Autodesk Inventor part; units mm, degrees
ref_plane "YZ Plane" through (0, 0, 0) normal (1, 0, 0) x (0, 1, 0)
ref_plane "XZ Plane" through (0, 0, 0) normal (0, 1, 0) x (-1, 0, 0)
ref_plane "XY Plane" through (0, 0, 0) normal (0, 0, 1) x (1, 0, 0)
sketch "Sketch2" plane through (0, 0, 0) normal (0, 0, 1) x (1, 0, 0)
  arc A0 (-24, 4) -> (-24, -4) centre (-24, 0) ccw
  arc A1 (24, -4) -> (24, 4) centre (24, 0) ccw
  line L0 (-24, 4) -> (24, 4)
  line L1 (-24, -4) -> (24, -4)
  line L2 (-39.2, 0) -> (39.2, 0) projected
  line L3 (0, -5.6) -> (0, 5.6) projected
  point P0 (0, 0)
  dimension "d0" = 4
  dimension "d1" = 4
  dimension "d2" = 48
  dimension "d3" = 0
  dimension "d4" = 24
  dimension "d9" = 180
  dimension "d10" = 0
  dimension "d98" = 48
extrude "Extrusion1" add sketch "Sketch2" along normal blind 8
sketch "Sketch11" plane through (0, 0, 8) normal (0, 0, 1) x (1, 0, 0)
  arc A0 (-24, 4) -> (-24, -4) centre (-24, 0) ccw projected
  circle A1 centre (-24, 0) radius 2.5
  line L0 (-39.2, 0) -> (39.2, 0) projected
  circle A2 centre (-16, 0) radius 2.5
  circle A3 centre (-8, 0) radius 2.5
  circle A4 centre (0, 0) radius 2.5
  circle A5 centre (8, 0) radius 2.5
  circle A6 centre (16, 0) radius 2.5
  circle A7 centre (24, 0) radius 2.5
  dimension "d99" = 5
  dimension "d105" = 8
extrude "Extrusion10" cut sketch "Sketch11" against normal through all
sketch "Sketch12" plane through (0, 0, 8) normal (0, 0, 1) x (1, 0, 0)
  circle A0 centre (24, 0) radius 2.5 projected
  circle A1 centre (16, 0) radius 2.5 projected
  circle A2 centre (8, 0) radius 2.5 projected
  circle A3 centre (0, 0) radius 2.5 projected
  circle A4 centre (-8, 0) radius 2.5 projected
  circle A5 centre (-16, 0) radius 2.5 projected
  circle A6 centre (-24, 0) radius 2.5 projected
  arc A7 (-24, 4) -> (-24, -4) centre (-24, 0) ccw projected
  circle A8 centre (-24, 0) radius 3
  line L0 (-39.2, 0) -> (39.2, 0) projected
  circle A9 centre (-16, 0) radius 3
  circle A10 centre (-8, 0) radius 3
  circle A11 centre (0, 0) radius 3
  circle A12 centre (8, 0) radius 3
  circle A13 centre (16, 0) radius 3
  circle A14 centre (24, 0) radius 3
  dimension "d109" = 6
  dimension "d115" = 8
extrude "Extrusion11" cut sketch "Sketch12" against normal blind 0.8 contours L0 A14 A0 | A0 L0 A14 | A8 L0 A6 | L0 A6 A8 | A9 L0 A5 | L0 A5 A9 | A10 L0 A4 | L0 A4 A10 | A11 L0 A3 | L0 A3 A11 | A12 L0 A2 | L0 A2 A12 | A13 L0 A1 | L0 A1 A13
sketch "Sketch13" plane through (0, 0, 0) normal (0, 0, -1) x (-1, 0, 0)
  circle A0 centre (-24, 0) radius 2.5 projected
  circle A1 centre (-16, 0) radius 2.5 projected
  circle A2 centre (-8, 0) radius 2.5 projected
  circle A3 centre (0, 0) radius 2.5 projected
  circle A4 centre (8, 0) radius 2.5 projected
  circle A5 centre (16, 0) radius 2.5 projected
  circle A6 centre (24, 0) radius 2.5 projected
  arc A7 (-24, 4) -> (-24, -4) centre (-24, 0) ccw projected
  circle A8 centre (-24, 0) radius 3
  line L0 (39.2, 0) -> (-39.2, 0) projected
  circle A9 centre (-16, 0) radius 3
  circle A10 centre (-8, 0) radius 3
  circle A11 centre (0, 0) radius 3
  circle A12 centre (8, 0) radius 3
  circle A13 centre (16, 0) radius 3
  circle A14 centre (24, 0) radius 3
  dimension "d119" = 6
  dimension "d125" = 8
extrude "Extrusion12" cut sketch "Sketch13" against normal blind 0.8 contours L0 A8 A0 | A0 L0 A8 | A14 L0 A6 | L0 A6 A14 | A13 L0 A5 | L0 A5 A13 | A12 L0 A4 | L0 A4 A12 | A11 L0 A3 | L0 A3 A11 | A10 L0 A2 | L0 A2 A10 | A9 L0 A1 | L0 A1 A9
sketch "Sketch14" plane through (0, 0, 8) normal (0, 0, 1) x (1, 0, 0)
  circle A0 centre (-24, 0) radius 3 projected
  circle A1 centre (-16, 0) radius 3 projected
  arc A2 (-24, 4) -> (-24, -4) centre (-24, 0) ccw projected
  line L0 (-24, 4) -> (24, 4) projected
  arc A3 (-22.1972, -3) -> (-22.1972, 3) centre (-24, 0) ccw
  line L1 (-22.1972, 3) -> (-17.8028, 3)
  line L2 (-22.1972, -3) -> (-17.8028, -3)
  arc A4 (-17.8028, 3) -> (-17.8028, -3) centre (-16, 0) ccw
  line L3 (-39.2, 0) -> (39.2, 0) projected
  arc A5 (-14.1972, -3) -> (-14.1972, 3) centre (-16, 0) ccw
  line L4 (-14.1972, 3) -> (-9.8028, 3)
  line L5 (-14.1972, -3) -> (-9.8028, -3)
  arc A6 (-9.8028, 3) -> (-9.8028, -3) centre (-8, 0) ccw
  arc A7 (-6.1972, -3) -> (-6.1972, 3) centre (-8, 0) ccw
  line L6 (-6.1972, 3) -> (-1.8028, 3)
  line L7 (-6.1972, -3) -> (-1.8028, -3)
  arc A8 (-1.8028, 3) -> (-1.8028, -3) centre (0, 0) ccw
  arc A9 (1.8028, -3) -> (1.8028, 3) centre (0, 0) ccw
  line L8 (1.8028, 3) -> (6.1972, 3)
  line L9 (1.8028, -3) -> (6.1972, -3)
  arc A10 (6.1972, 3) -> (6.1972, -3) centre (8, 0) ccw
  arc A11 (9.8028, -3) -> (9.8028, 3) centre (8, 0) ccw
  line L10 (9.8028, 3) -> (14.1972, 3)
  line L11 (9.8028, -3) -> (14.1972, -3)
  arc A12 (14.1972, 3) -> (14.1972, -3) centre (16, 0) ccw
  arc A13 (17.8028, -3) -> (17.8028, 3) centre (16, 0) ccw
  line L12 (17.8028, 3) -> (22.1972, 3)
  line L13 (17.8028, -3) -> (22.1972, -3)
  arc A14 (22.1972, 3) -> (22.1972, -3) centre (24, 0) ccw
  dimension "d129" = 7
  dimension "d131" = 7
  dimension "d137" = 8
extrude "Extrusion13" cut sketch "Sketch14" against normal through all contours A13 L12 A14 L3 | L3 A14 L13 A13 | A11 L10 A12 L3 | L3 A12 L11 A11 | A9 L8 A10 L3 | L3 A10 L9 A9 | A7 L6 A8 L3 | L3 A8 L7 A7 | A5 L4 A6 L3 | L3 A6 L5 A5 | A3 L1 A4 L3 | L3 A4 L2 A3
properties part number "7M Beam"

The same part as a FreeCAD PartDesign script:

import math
import FreeCAD as App
import Part
import Sketcher
Q = App.Units.Quantity

doc = App.newDocument("Part")
body = doc.addObject("PartDesign::Body", "Body")

# Sketch on XY plane
sketch1 = doc.addObject("Sketcher::SketchObject", "Sketch")
body.addObject(sketch1)
sketch1.AttachmentSupport = (doc.XY_Plane, [""])
sketch1.MapMode = "FlatFace"
sketch1.addGeometry([
    Part.ArcOfCircle(Part.Circle(App.Vector(-24, 0, 0), App.Vector(0, 0, 1), 4), math.radians(90), math.radians(270)),
    Part.LineSegment(App.Vector(-24, -4, 0), App.Vector(24, -4, 0)),
    Part.ArcOfCircle(Part.Circle(App.Vector(24, 0, 0), App.Vector(0, 0, 1), 4), math.radians(-90), math.radians(90)),
    Part.LineSegment(App.Vector(24, 4, 0), App.Vector(-24, 4, 0)),
], False)
sketch1.addConstraint([
    Sketcher.Constraint("Tangent", 0, 2, 1, 1),
    Sketcher.Constraint("Tangent", 1, 2, 2, 1),
    Sketcher.Constraint("Tangent", 2, 2, 3, 1),
    Sketcher.Constraint("Tangent", 3, 2, 0, 1),
    Sketcher.Constraint("Horizontal", 1),
    Sketcher.Constraint("Horizontal", 3),
    Sketcher.Constraint("Symmetric", 0, 3, 2, 3, -1, 1),
    Sketcher.Constraint("Radius", 0, Q("4 mm")),
    Sketcher.Constraint("DistanceX", 1, 1, 1, 2, Q("48 mm")),
])
pad1 = doc.addObject("PartDesign::Pad", "Pad")
body.addObject(pad1)
pad1.Profile = sketch1
pad1.Length = 8

# Sketch on XY plane
sketch2 = doc.addObject("Sketcher::SketchObject", "Sketch001")
body.addObject(sketch2)
sketch2.AttachmentSupport = (doc.XY_Plane, [""])
sketch2.MapMode = "FlatFace"
sketch2.AttachmentOffset = App.Placement(App.Vector(0, 0, 8), App.Rotation())
sketch2.addGeometry([
    Part.Circle(App.Vector(-24, 0, 0), App.Vector(0, 0, 1), 2.5),  # 0
    Part.Circle(App.Vector(24, 0, 0), App.Vector(0, 0, 1), 2.5),  # 1
    Part.Circle(App.Vector(16, 0, 0), App.Vector(0, 0, 1), 2.5),  # 2
    Part.Circle(App.Vector(8, 0, 0), App.Vector(0, 0, 1), 2.5),  # 3
    Part.Circle(App.Vector(0, 0, 0), App.Vector(0, 0, 1), 2.5),  # 4
    Part.Circle(App.Vector(-8, 0, 0), App.Vector(0, 0, 1), 2.5),  # 5
    Part.Circle(App.Vector(-16, 0, 0), App.Vector(0, 0, 1), 2.5),  # 6
], False)
sketch2.addConstraint([
    Sketcher.Constraint("Coincident", 4, 3, -1, 1),
    Sketcher.Constraint("Equal", 0, 1),
    Sketcher.Constraint("Equal", 1, 2),
    Sketcher.Constraint("Equal", 2, 3),
    Sketcher.Constraint("Equal", 3, 4),
    Sketcher.Constraint("Equal", 4, 5),
    Sketcher.Constraint("Equal", 5, 6),
    Sketcher.Constraint("Symmetric", 0, 3, 1, 3, -1, 1),
    Sketcher.Constraint("Symmetric", 3, 3, 5, 3, -1, 1),
    Sketcher.Constraint("Symmetric", 2, 3, 6, 3, -1, 1),
    Sketcher.Constraint("PointOnObject", 0, 3, -1),
    Sketcher.Constraint("PointOnObject", 2, 3, -1),
    Sketcher.Constraint("PointOnObject", 3, 3, -1),
    Sketcher.Constraint("Diameter", 0, Q("5 mm")),
    Sketcher.Constraint("DistanceX", -1, 1, 3, 3, Q("8 mm")),
    Sketcher.Constraint("DistanceX", 2, 3, 1, 3, Q("8 mm")),
    Sketcher.Constraint("DistanceX", 3, 3, 2, 3, Q("8 mm")),
])
pocket1 = doc.addObject("PartDesign::Pocket", "Pocket")
body.addObject(pocket1)
pocket1.Profile = sketch2
pocket1.Type = "ThroughAll"

# Sketch on XY plane
sketch3 = doc.addObject("Sketcher::SketchObject", "Sketch002")
body.addObject(sketch3)
sketch3.AttachmentSupport = (doc.XY_Plane, [""])
sketch3.MapMode = "FlatFace"
sketch3.AttachmentOffset = App.Placement(App.Vector(0, 0, 8), App.Rotation())
sketch3.addGeometry([
    Part.Circle(App.Vector(24, 0, 0), App.Vector(0, 0, 1), 3),  # 0
    Part.Circle(App.Vector(24, 0, 0), App.Vector(0, 0, 1), 2.5),  # 1
    Part.Circle(App.Vector(-24, 0, 0), App.Vector(0, 0, 1), 3),  # 2
    Part.Circle(App.Vector(-24, 0, 0), App.Vector(0, 0, 1), 2.5),  # 3
    Part.Circle(App.Vector(-16, 0, 0), App.Vector(0, 0, 1), 3),  # 4
    Part.Circle(App.Vector(-16, 0, 0), App.Vector(0, 0, 1), 2.5),  # 5
    Part.Circle(App.Vector(-8, 0, 0), App.Vector(0, 0, 1), 3),  # 6
    Part.Circle(App.Vector(-8, 0, 0), App.Vector(0, 0, 1), 2.5),  # 7
    Part.Circle(App.Vector(0, 0, 0), App.Vector(0, 0, 1), 3),  # 8
    Part.Circle(App.Vector(0, 0, 0), App.Vector(0, 0, 1), 2.5),  # 9
    Part.Circle(App.Vector(8, 0, 0), App.Vector(0, 0, 1), 3),  # 10
    Part.Circle(App.Vector(8, 0, 0), App.Vector(0, 0, 1), 2.5),  # 11
    Part.Circle(App.Vector(16, 0, 0), App.Vector(0, 0, 1), 3),  # 12
    Part.Circle(App.Vector(16, 0, 0), App.Vector(0, 0, 1), 2.5),  # 13
], False)
sketch3.addConstraint([
    Sketcher.Constraint("Coincident", 8, 3, -1, 1),
    Sketcher.Constraint("Coincident", 9, 3, -1, 1),
    Sketcher.Constraint("Coincident", 1, 3, 0, 3),
    Sketcher.Constraint("Coincident", 3, 3, 2, 3),
    Sketcher.Constraint("Coincident", 5, 3, 4, 3),
    Sketcher.Constraint("Coincident", 7, 3, 6, 3),
    Sketcher.Constraint("Coincident", 11, 3, 10, 3),
    Sketcher.Constraint("Coincident", 13, 3, 12, 3),
    Sketcher.Constraint("Equal", 0, 2),
    Sketcher.Constraint("Equal", 1, 3),
    Sketcher.Constraint("Equal", 2, 4),
    Sketcher.Constraint("Equal", 3, 5),
    Sketcher.Constraint("Equal", 4, 6),
    Sketcher.Constraint("Equal", 5, 7),
    Sketcher.Constraint("Equal", 6, 8),
    Sketcher.Constraint("Equal", 7, 9),
    Sketcher.Constraint("Equal", 8, 10),
    Sketcher.Constraint("Equal", 9, 11),
    Sketcher.Constraint("Equal", 10, 12),
    Sketcher.Constraint("Equal", 11, 13),
    Sketcher.Constraint("Symmetric", 0, 3, 2, 3, -1, 1),
    Sketcher.Constraint("Symmetric", 6, 3, 10, 3, -1, 1),
    Sketcher.Constraint("Symmetric", 4, 3, 12, 3, -1, 1),
    Sketcher.Constraint("PointOnObject", 0, 3, -1),
    Sketcher.Constraint("PointOnObject", 4, 3, -1),
    Sketcher.Constraint("PointOnObject", 6, 3, -1),
    Sketcher.Constraint("Diameter", 0, Q("6 mm")),
    Sketcher.Constraint("Diameter", 1, Q("5 mm")),
    Sketcher.Constraint("DistanceX", 6, 3, -1, 1, Q("8 mm")),
    Sketcher.Constraint("DistanceX", 2, 3, 4, 3, Q("8 mm")),
    Sketcher.Constraint("DistanceX", 4, 3, 6, 3, Q("8 mm")),
])
pocket2 = doc.addObject("PartDesign::Pocket", "Pocket001")
body.addObject(pocket2)
pocket2.Profile = sketch3
pocket2.Length = 0.8

# Sketch on XY plane
sketch4 = doc.addObject("Sketcher::SketchObject", "Sketch003")
body.addObject(sketch4)
sketch4.AttachmentSupport = (doc.XY_Plane, [""])
sketch4.MapMode = "FlatFace"
sketch4.addGeometry([
    Part.Circle(App.Vector(24, 0, 0), App.Vector(0, 0, 1), 3),  # 0
    Part.Circle(App.Vector(24, 0, 0), App.Vector(0, 0, 1), 2.5),  # 1
    Part.Circle(App.Vector(-24, 0, 0), App.Vector(0, 0, 1), 3),  # 2
    Part.Circle(App.Vector(-24, 0, 0), App.Vector(0, 0, 1), 2.5),  # 3
    Part.Circle(App.Vector(-16, 0, 0), App.Vector(0, 0, 1), 3),  # 4
    Part.Circle(App.Vector(-16, 0, 0), App.Vector(0, 0, 1), 2.5),  # 5
    Part.Circle(App.Vector(-8, 0, 0), App.Vector(0, 0, 1), 3),  # 6
    Part.Circle(App.Vector(-8, 0, 0), App.Vector(0, 0, 1), 2.5),  # 7
    Part.Circle(App.Vector(0, 0, 0), App.Vector(0, 0, 1), 3),  # 8
    Part.Circle(App.Vector(0, 0, 0), App.Vector(0, 0, 1), 2.5),  # 9
    Part.Circle(App.Vector(8, 0, 0), App.Vector(0, 0, 1), 3),  # 10
    Part.Circle(App.Vector(8, 0, 0), App.Vector(0, 0, 1), 2.5),  # 11
    Part.Circle(App.Vector(16, 0, 0), App.Vector(0, 0, 1), 3),  # 12
    Part.Circle(App.Vector(16, 0, 0), App.Vector(0, 0, 1), 2.5),  # 13
], False)
sketch4.addConstraint([
    Sketcher.Constraint("Coincident", 8, 3, -1, 1),
    Sketcher.Constraint("Coincident", 9, 3, -1, 1),
    Sketcher.Constraint("Coincident", 1, 3, 0, 3),
    Sketcher.Constraint("Coincident", 3, 3, 2, 3),
    Sketcher.Constraint("Coincident", 5, 3, 4, 3),
    Sketcher.Constraint("Coincident", 7, 3, 6, 3),
    Sketcher.Constraint("Coincident", 11, 3, 10, 3),
    Sketcher.Constraint("Coincident", 13, 3, 12, 3),
    Sketcher.Constraint("Equal", 0, 2),
    Sketcher.Constraint("Equal", 1, 3),
    Sketcher.Constraint("Equal", 2, 4),
    Sketcher.Constraint("Equal", 3, 5),
    Sketcher.Constraint("Equal", 4, 6),
    Sketcher.Constraint("Equal", 5, 7),
    Sketcher.Constraint("Equal", 6, 8),
    Sketcher.Constraint("Equal", 7, 9),
    Sketcher.Constraint("Equal", 8, 10),
    Sketcher.Constraint("Equal", 9, 11),
    Sketcher.Constraint("Equal", 10, 12),
    Sketcher.Constraint("Equal", 11, 13),
    Sketcher.Constraint("Symmetric", 0, 3, 2, 3, -1, 1),
    Sketcher.Constraint("Symmetric", 6, 3, 10, 3, -1, 1),
    Sketcher.Constraint("Symmetric", 4, 3, 12, 3, -1, 1),
    Sketcher.Constraint("PointOnObject", 0, 3, -1),
    Sketcher.Constraint("PointOnObject", 4, 3, -1),
    Sketcher.Constraint("PointOnObject", 6, 3, -1),
    Sketcher.Constraint("Diameter", 0, Q("6 mm")),
    Sketcher.Constraint("Diameter", 1, Q("5 mm")),
    Sketcher.Constraint("DistanceX", 6, 3, -1, 1, Q("8 mm")),
    Sketcher.Constraint("DistanceX", 2, 3, 4, 3, Q("8 mm")),
    Sketcher.Constraint("DistanceX", 4, 3, 6, 3, Q("8 mm")),
])
pocket3 = doc.addObject("PartDesign::Pocket", "Pocket002")
body.addObject(pocket3)
pocket3.Profile = sketch4
pocket3.Length = 0.8
pocket3.Reversed = True

# Sketch on XY plane
sketch5 = doc.addObject("Sketcher::SketchObject", "Sketch004")
body.addObject(sketch5)
sketch5.AttachmentSupport = (doc.XY_Plane, [""])
sketch5.MapMode = "FlatFace"
sketch5.AttachmentOffset = App.Placement(App.Vector(0, 0, 8), App.Rotation())
sketch5.addGeometry([
    Part.ArcOfCircle(Part.Circle(App.Vector(16, 0, 0), App.Vector(0, 0, 1), 3.500013), math.radians(-58.996939), math.radians(58.996939)),  # 0
    Part.LineSegment(App.Vector(17.8028, -3, 0), App.Vector(22.1972, -3, 0)),  # 1
    Part.ArcOfCircle(Part.Circle(App.Vector(24, 0, 0), App.Vector(0, 0, 1), 3.500013), math.radians(121.003061), math.radians(238.996939)),  # 2
    Part.LineSegment(App.Vector(22.1972, 3, 0), App.Vector(17.8028, 3, 0)),  # 3
    Part.ArcOfCircle(Part.Circle(App.Vector(8, 0, 0), App.Vector(0, 0, 1), 3.500013), math.radians(-58.996939), math.radians(58.996939)),  # 4
    Part.LineSegment(App.Vector(9.8028, -3, 0), App.Vector(14.1972, -3, 0)),  # 5
    Part.ArcOfCircle(Part.Circle(App.Vector(16, 0, 0), App.Vector(0, 0, 1), 3.500013), math.radians(121.003061), math.radians(238.996939)),  # 6
    Part.LineSegment(App.Vector(14.1972, 3, 0), App.Vector(9.8028, 3, 0)),  # 7
    Part.ArcOfCircle(Part.Circle(App.Vector(0, 0, 0), App.Vector(0, 0, 1), 3.500013), math.radians(-58.996939), math.radians(58.996939)),  # 8
    Part.LineSegment(App.Vector(1.8028, -3, 0), App.Vector(6.1972, -3, 0)),  # 9
    Part.ArcOfCircle(Part.Circle(App.Vector(8, 0, 0), App.Vector(0, 0, 1), 3.500013), math.radians(121.003061), math.radians(238.996939)),  # 10
    Part.LineSegment(App.Vector(6.1972, 3, 0), App.Vector(1.8028, 3, 0)),  # 11
    Part.ArcOfCircle(Part.Circle(App.Vector(-8, 0, 0), App.Vector(0, 0, 1), 3.500013), math.radians(-58.996939), math.radians(58.996939)),  # 12
    Part.LineSegment(App.Vector(-6.1972, -3, 0), App.Vector(-1.8028, -3, 0)),  # 13
    Part.ArcOfCircle(Part.Circle(App.Vector(0, 0, 0), App.Vector(0, 0, 1), 3.500013), math.radians(121.003061), math.radians(238.996939)),  # 14
    Part.LineSegment(App.Vector(-1.8028, 3, 0), App.Vector(-6.1972, 3, 0)),  # 15
    Part.ArcOfCircle(Part.Circle(App.Vector(-16, 0, 0), App.Vector(0, 0, 1), 3.500013), math.radians(-58.996939), math.radians(58.996939)),  # 16
    Part.LineSegment(App.Vector(-14.1972, -3, 0), App.Vector(-9.8028, -3, 0)),  # 17
    Part.ArcOfCircle(Part.Circle(App.Vector(-8, 0, 0), App.Vector(0, 0, 1), 3.500013), math.radians(121.003061), math.radians(238.996939)),  # 18
    Part.LineSegment(App.Vector(-9.8028, 3, 0), App.Vector(-14.1972, 3, 0)),  # 19
    Part.ArcOfCircle(Part.Circle(App.Vector(-24, 0, 0), App.Vector(0, 0, 1), 3.500013), math.radians(-58.996939), math.radians(58.996939)),  # 20
    Part.LineSegment(App.Vector(-22.1972, -3, 0), App.Vector(-17.8028, -3, 0)),  # 21
    Part.ArcOfCircle(Part.Circle(App.Vector(-16, 0, 0), App.Vector(0, 0, 1), 3.500013), math.radians(121.003061), math.radians(238.996939)),  # 22
    Part.LineSegment(App.Vector(-17.8028, 3, 0), App.Vector(-22.1972, 3, 0)),  # 23
], False)
sketch5.addConstraint([
    Sketcher.Constraint("Coincident", 0, 1, 1, 1),
    Sketcher.Constraint("Coincident", 1, 2, 2, 2),
    Sketcher.Constraint("Coincident", 2, 1, 3, 1),
    Sketcher.Constraint("Coincident", 3, 2, 0, 2),
    Sketcher.Constraint("Coincident", 4, 1, 5, 1),
    Sketcher.Constraint("Coincident", 5, 2, 6, 2),
    Sketcher.Constraint("Coincident", 6, 1, 7, 1),
    Sketcher.Constraint("Coincident", 7, 2, 4, 2),
    Sketcher.Constraint("Coincident", 8, 1, 9, 1),
    Sketcher.Constraint("Coincident", 9, 2, 10, 2),
    Sketcher.Constraint("Coincident", 10, 1, 11, 1),
    Sketcher.Constraint("Coincident", 11, 2, 8, 2),
    Sketcher.Constraint("Coincident", 12, 1, 13, 1),
    Sketcher.Constraint("Coincident", 13, 2, 14, 2),
    Sketcher.Constraint("Coincident", 14, 1, 15, 1),
    Sketcher.Constraint("Coincident", 15, 2, 12, 2),
    Sketcher.Constraint("Coincident", 16, 1, 17, 1),
    Sketcher.Constraint("Coincident", 17, 2, 18, 2),
    Sketcher.Constraint("Coincident", 18, 1, 19, 1),
    Sketcher.Constraint("Coincident", 19, 2, 16, 2),
    Sketcher.Constraint("Coincident", 20, 1, 21, 1),
    Sketcher.Constraint("Coincident", 21, 2, 22, 2),
    Sketcher.Constraint("Coincident", 22, 1, 23, 1),
    Sketcher.Constraint("Coincident", 23, 2, 20, 2),
    Sketcher.Constraint("Horizontal", 1),
    Sketcher.Constraint("Horizontal", 3),
    Sketcher.Constraint("Horizontal", 5),
    Sketcher.Constraint("Horizontal", 7),
    Sketcher.Constraint("Horizontal", 9),
    Sketcher.Constraint("Horizontal", 11),
    Sketcher.Constraint("Horizontal", 13),
    Sketcher.Constraint("Horizontal", 15),
    Sketcher.Constraint("Horizontal", 17),
    Sketcher.Constraint("Horizontal", 19),
    Sketcher.Constraint("Horizontal", 21),
    Sketcher.Constraint("Horizontal", 23),
    Sketcher.Constraint("Coincident", 8, 3, -1, 1),
    Sketcher.Constraint("Coincident", 14, 3, -1, 1),
    Sketcher.Constraint("Coincident", 6, 3, 0, 3),
    Sketcher.Constraint("Coincident", 10, 3, 4, 3),
    Sketcher.Constraint("Coincident", 18, 3, 12, 3),
    Sketcher.Constraint("Coincident", 22, 3, 16, 3),
    Sketcher.Constraint("Equal", 0, 2),
    Sketcher.Constraint("Equal", 2, 4),
    Sketcher.Constraint("Equal", 4, 6),
    Sketcher.Constraint("Equal", 6, 8),
    Sketcher.Constraint("Equal", 8, 10),
    Sketcher.Constraint("Equal", 10, 12),
    Sketcher.Constraint("Equal", 12, 14),
    Sketcher.Constraint("Equal", 14, 16),
    Sketcher.Constraint("Equal", 16, 18),
    Sketcher.Constraint("Equal", 18, 20),
    Sketcher.Constraint("Equal", 20, 22),
    Sketcher.Constraint("Symmetric", 4, 3, 12, 3, -1, 1),
    Sketcher.Constraint("Symmetric", 0, 3, 16, 3, -1, 1),
    Sketcher.Constraint("Symmetric", 2, 3, 20, 3, -1, 1),
    Sketcher.Constraint("Symmetric", 9, 2, 12, 1, -2),
    Sketcher.Constraint("Symmetric", 5, 2, 16, 1, -2),
    Sketcher.Constraint("Symmetric", 1, 2, 20, 1, -2),
    Sketcher.Constraint("Horizontal", 1, 2, 4, 1),
    Sketcher.Constraint("Horizontal", 3, 2, 6, 1),
    Sketcher.Constraint("Horizontal", 5, 2, 8, 1),
    Sketcher.Constraint("Horizontal", 7, 2, 10, 1),
    Sketcher.Constraint("Horizontal", 11, 2, 14, 1),
    Sketcher.Constraint("Horizontal", 15, 2, 18, 1),
    Sketcher.Constraint("Horizontal", 19, 2, 22, 1),
    Sketcher.Constraint("Vertical", 1, 2, 2, 1),
    Sketcher.Constraint("Equal", 3, 5),
    Sketcher.Constraint("Equal", 7, 9),
    Sketcher.Constraint("Radius", 0, Q("3.5 mm")),
    Sketcher.Constraint("DistanceX", -1, 1, 4, 3, Q("8 mm")),
    Sketcher.Constraint("DistanceY", 0, 1, -1, 1, Q("3 mm")),
])
pocket4 = doc.addObject("PartDesign::Pocket", "Pocket003")
body.addObject(pocket4)
pocket4.Profile = sketch5
pocket4.Type = "ThroughAll"

doc.recompute()
